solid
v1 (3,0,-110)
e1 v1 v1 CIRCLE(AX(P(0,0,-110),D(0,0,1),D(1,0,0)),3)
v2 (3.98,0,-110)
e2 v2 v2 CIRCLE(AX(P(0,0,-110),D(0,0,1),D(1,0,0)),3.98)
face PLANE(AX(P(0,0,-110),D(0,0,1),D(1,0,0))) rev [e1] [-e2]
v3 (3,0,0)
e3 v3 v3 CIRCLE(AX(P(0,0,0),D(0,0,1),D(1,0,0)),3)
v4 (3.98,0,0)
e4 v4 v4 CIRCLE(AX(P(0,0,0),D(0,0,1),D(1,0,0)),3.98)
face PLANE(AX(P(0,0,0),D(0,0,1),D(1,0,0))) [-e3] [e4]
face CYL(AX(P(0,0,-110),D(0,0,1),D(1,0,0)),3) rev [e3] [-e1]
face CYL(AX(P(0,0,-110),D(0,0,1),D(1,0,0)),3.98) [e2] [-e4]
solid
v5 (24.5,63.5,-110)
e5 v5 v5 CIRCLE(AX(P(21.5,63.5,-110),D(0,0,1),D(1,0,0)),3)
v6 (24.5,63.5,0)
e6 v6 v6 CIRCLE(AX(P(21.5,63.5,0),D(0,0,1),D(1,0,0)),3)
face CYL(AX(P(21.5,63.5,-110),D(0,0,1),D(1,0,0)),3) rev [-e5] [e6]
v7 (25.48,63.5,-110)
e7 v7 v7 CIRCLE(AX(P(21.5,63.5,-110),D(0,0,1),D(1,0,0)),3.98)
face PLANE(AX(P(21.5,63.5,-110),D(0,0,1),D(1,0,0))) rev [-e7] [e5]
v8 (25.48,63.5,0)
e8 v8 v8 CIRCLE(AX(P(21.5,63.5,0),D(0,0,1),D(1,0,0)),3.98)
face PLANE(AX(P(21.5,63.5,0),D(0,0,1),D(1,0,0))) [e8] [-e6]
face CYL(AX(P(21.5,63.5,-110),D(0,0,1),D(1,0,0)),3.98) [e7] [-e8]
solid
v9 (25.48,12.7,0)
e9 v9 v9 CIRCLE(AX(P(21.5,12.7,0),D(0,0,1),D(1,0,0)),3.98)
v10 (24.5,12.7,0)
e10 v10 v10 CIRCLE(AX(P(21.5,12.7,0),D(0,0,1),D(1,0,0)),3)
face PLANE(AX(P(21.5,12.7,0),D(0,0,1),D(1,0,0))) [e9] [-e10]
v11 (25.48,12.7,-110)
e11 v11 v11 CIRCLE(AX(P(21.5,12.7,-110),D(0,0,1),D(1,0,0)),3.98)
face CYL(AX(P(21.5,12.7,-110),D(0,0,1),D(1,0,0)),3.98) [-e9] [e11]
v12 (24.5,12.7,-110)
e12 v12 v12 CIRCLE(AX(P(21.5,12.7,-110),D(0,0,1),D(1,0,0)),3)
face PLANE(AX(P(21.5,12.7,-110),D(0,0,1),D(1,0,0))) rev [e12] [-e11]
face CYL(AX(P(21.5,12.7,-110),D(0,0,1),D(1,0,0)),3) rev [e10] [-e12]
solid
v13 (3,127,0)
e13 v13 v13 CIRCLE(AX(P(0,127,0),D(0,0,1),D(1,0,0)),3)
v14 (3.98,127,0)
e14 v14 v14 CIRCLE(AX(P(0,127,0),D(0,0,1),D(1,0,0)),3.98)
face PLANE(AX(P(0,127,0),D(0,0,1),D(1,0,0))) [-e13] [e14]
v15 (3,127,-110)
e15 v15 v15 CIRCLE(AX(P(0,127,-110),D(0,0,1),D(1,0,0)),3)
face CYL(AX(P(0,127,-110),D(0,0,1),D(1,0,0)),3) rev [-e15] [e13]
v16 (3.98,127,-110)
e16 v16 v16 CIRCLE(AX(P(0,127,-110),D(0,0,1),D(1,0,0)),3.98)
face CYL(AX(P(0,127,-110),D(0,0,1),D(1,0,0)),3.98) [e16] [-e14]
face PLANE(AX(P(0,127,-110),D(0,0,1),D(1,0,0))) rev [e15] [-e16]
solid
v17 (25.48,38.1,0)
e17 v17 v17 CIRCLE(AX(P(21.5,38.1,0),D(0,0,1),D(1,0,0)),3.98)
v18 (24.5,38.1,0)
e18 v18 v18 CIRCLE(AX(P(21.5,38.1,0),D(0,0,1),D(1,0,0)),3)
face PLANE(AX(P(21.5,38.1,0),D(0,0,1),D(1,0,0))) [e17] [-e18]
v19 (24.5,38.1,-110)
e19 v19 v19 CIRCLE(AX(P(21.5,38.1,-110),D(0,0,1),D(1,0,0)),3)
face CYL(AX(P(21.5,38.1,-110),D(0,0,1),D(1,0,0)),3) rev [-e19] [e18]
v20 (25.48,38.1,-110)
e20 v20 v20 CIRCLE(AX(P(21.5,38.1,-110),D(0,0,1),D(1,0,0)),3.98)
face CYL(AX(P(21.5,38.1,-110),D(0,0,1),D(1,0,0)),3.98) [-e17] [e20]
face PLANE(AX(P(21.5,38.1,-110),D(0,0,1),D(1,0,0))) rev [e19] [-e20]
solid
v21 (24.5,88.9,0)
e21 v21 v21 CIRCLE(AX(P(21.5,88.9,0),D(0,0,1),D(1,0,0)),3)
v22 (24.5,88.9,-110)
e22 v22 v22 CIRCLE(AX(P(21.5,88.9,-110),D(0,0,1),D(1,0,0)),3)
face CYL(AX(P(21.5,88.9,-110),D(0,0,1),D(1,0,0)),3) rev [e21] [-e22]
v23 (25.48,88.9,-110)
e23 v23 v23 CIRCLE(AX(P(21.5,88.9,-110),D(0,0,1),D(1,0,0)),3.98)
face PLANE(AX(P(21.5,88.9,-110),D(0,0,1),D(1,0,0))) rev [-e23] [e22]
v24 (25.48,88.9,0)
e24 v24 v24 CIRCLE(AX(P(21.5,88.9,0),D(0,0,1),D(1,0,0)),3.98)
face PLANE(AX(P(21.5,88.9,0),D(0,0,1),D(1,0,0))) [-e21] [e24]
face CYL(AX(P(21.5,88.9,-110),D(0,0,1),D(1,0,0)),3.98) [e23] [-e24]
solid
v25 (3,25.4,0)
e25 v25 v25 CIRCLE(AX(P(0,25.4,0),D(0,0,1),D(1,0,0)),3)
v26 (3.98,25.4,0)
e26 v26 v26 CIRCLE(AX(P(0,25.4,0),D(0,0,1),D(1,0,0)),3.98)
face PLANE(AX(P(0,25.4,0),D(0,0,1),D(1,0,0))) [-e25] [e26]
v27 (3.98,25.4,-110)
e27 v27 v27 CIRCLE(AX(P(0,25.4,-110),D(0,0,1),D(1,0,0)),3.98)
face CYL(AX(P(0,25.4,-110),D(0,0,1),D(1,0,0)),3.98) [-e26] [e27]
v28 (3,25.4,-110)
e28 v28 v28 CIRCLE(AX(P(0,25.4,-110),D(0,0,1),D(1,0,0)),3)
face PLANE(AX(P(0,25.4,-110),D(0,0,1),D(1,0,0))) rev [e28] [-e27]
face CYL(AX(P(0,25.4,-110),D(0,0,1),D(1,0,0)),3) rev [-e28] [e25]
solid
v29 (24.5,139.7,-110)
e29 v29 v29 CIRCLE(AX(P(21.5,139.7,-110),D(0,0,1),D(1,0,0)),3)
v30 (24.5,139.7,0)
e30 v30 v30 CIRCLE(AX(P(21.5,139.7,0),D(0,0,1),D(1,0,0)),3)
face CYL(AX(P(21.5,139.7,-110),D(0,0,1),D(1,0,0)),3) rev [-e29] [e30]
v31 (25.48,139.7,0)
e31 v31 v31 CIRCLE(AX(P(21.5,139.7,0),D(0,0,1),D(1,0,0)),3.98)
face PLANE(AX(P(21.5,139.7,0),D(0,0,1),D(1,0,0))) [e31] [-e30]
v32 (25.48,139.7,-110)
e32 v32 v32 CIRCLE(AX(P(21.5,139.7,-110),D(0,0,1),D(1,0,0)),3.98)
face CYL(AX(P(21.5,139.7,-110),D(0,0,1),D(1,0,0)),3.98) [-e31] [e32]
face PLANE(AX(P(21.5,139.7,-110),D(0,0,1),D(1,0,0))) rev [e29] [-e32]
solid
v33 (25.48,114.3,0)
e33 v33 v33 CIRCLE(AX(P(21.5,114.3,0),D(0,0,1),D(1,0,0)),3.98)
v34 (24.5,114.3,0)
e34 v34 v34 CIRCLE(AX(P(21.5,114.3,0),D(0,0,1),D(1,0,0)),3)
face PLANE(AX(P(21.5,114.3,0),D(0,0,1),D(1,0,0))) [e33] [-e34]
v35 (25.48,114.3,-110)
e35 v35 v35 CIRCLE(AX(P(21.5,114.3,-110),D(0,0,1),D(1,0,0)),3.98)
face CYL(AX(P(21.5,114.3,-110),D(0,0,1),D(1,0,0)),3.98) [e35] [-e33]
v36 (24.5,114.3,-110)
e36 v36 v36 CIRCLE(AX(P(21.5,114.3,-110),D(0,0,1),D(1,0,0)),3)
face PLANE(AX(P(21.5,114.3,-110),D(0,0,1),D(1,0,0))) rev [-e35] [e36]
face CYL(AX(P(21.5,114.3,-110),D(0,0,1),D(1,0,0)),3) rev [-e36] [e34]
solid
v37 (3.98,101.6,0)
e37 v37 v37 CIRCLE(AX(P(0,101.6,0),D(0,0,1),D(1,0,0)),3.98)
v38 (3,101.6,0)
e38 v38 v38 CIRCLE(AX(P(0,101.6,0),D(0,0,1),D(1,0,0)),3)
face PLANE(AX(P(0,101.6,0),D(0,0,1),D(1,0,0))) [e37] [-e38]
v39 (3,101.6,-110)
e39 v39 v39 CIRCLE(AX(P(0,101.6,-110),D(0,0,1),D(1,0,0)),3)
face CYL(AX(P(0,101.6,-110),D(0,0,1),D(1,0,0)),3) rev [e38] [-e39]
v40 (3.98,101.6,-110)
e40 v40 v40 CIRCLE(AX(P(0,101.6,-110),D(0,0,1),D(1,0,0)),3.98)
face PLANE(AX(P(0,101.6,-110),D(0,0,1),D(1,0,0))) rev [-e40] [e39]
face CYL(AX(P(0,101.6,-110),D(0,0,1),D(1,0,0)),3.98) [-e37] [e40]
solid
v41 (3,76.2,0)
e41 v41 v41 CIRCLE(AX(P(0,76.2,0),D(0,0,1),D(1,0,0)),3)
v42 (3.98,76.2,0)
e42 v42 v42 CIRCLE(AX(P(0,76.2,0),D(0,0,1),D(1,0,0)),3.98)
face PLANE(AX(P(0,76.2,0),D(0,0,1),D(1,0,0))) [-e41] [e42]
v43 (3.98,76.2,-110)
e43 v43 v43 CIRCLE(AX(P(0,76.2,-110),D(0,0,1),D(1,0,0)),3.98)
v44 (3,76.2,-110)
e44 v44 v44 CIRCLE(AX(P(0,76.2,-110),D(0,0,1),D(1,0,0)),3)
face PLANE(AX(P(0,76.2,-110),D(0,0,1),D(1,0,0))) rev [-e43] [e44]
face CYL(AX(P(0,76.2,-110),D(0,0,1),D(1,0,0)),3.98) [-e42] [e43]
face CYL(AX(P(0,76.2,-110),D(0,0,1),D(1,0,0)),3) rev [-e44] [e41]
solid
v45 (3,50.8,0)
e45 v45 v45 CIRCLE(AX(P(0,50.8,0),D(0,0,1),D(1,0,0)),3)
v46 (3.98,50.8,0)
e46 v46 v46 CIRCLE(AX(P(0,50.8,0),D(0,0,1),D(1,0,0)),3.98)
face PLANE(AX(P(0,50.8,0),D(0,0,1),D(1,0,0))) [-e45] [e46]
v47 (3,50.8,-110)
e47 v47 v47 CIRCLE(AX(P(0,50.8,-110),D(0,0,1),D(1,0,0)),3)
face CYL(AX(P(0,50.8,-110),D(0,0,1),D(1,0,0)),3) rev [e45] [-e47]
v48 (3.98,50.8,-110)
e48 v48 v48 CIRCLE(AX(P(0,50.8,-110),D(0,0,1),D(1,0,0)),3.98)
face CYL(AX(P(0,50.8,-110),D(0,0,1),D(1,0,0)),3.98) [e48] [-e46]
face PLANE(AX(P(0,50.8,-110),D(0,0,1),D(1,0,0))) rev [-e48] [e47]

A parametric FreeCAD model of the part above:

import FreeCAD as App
import Part
import Sketcher

V = App.Vector

doc = App.newDocument("Part")
body = doc.addObject("PartDesign::Body", "Body")

# Sketch on XY plane
sketch1 = body.newObject("Sketcher::SketchObject", "Sketch")
sketch1.AttachmentSupport = (doc.getObject("XY_Plane"), [""])
sketch1.MapMode = "FlatFace"
sketch1.addGeometry(Part.Circle(V(0, 0, 0), V(0, 0, 1), 4), False)
sketch1.addGeometry(Part.Circle(V(0, 0, 0), V(0, 0, 1), 3), False)
sketch1.addConstraint(Sketcher.Constraint("Coincident", 0, 3, -1, 1))
sketch1.addConstraint(Sketcher.Constraint("Coincident", 1, 3, -1, 1))
sketch1.addConstraint(Sketcher.Constraint("Diameter", 1, 6.0))
sketch1.addConstraint(Sketcher.Constraint("Diameter", 0, 7.96))
pad1 = body.newObject("PartDesign::Pad", "Pad")
pad1.Profile = sketch1
pad1.Length = 110
pad1.Reversed = True
body2 = doc.addObject("PartDesign::Body", "Body001")

# Sketch on XY plane
sketch2 = body2.newObject("Sketcher::SketchObject", "Sketch001")
sketch2.AttachmentSupport = (doc.getObject("XY_Plane001"), [""])
sketch2.MapMode = "FlatFace"
sketch2.addGeometry(Part.Circle(V(21.5, 12.7, 0), V(0, 0, 1), 4), False)
sketch2.addGeometry(Part.Circle(V(21.5, 12.7, 0), V(0, 0, 1), 3), False)
sketch2.addConstraint(Sketcher.Constraint("Coincident", 1, 3, 0, 3))
sketch2.addConstraint(Sketcher.Constraint("Diameter", 1, 6.0))
sketch2.addConstraint(Sketcher.Constraint("Diameter", 0, 7.96))
sketch2.addConstraint(Sketcher.Constraint("DistanceX", -1, 1, 0, 3, 21.5))
sketch2.addConstraint(Sketcher.Constraint("DistanceY", -1, 1, 0, 3, 12.7))
pad2 = body2.newObject("PartDesign::Pad", "Pad001")
pad2.Profile = sketch2
pad2.Length = 110
pad2.Reversed = True
body3 = doc.addObject("PartDesign::Body", "Body002")

# Sketch on XY plane
sketch3 = body3.newObject("Sketcher::SketchObject", "Sketch002")
sketch3.AttachmentSupport = (doc.getObject("XY_Plane002"), [""])
sketch3.MapMode = "FlatFace"
sketch3.addGeometry(Part.Circle(V(0, 25.4, 0), V(0, 0, 1), 4), False)
sketch3.addGeometry(Part.Circle(V(0, 25.4, 0), V(0, 0, 1), 3), False)
sketch3.addConstraint(Sketcher.Constraint("Coincident", 1, 3, 0, 3))
sketch3.addConstraint(Sketcher.Constraint("PointOnObject", 0, 3, -2))
sketch3.addConstraint(Sketcher.Constraint("Diameter", 1, 6.0))
sketch3.addConstraint(Sketcher.Constraint("Diameter", 0, 7.96))
sketch3.addConstraint(Sketcher.Constraint("DistanceY", -1, 1, 0, 3, 25.4))
pad3 = body3.newObject("PartDesign::Pad", "Pad002")
pad3.Profile = sketch3
pad3.Length = 110
pad3.Reversed = True
body4 = doc.addObject("PartDesign::Body", "Body003")

# Sketch on XY plane
sketch4 = body4.newObject("Sketcher::SketchObject", "Sketch003")
sketch4.AttachmentSupport = (doc.getObject("XY_Plane003"), [""])
sketch4.MapMode = "FlatFace"
sketch4.addGeometry(Part.Circle(V(0, 50.8, 0), V(0, 0, 1), 4), False)
sketch4.addGeometry(Part.Circle(V(0, 50.8, 0), V(0, 0, 1), 3), False)
sketch4.addConstraint(Sketcher.Constraint("Coincident", 1, 3, 0, 3))
sketch4.addConstraint(Sketcher.Constraint("PointOnObject", 0, 3, -2))
sketch4.addConstraint(Sketcher.Constraint("Diameter", 1, 6.0))
sketch4.addConstraint(Sketcher.Constraint("Diameter", 0, 7.96))
sketch4.addConstraint(Sketcher.Constraint("DistanceY", -1, 1, 0, 3, 50.8))
pad4 = body4.newObject("PartDesign::Pad", "Pad003")
pad4.Profile = sketch4
pad4.Length = 110
pad4.Reversed = True
body5 = doc.addObject("PartDesign::Body", "Body004")

# Sketch on XY plane
sketch5 = body5.newObject("Sketcher::SketchObject", "Sketch004")
sketch5.AttachmentSupport = (doc.getObject("XY_Plane004"), [""])
sketch5.MapMode = "FlatFace"
sketch5.addGeometry(Part.Circle(V(0, 76.2, 0), V(0, 0, 1), 4), False)
sketch5.addGeometry(Part.Circle(V(0, 76.2, 0), V(0, 0, 1), 3), False)
sketch5.addConstraint(Sketcher.Constraint("Coincident", 1, 3, 0, 3))
sketch5.addConstraint(Sketcher.Constraint("PointOnObject", 0, 3, -2))
sketch5.addConstraint(Sketcher.Constraint("Diameter", 1, 6.0))
sketch5.addConstraint(Sketcher.Constraint("Diameter", 0, 7.96))
sketch5.addConstraint(Sketcher.Constraint("DistanceY", -1, 1, 0, 3, 76.2))
pad5 = body5.newObject("PartDesign::Pad", "Pad004")
pad5.Profile = sketch5
pad5.Length = 110
pad5.Reversed = True
body6 = doc.addObject("PartDesign::Body", "Body005")

# Sketch on XY plane
sketch6 = body6.newObject("Sketcher::SketchObject", "Sketch005")
sketch6.AttachmentSupport = (doc.getObject("XY_Plane005"), [""])
sketch6.MapMode = "FlatFace"
sketch6.addGeometry(Part.Circle(V(0, 101.6, 0), V(0, 0, 1), 4), False)
sketch6.addGeometry(Part.Circle(V(0, 101.6, 0), V(0, 0, 1), 3), False)
sketch6.addConstraint(Sketcher.Constraint("Coincident", 1, 3, 0, 3))
sketch6.addConstraint(Sketcher.Constraint("PointOnObject", 0, 3, -2))
sketch6.addConstraint(Sketcher.Constraint("Diameter", 1, 6.0))
sketch6.addConstraint(Sketcher.Constraint("Diameter", 0, 7.96))
sketch6.addConstraint(Sketcher.Constraint("DistanceY", -1, 1, 0, 3, 101.6))
pad6 = body6.newObject("PartDesign::Pad", "Pad005")
pad6.Profile = sketch6
pad6.Length = 110
pad6.Reversed = True
body7 = doc.addObject("PartDesign::Body", "Body006")

# Sketch on XY plane
sketch7 = body7.newObject("Sketcher::SketchObject", "Sketch006")
sketch7.AttachmentSupport = (doc.getObject("XY_Plane006"), [""])
sketch7.MapMode = "FlatFace"
sketch7.addGeometry(Part.Circle(V(0, 127, 0), V(0, 0, 1), 4), False)
sketch7.addGeometry(Part.Circle(V(0, 127, 0), V(0, 0, 1), 3), False)
sketch7.addConstraint(Sketcher.Constraint("Coincident", 1, 3, 0, 3))
sketch7.addConstraint(Sketcher.Constraint("PointOnObject", 0, 3, -2))
sketch7.addConstraint(Sketcher.Constraint("Diameter", 1, 6.0))
sketch7.addConstraint(Sketcher.Constraint("Diameter", 0, 7.96))
sketch7.addConstraint(Sketcher.Constraint("DistanceY", -1, 1, 0, 3, 127.0))
pad7 = body7.newObject("PartDesign::Pad", "Pad006")
pad7.Profile = sketch7
pad7.Length = 110
pad7.Reversed = True
body8 = doc.addObject("PartDesign::Body", "Body007")

# Sketch on XY plane
sketch8 = body8.newObject("Sketcher::SketchObject", "Sketch007")
sketch8.AttachmentSupport = (doc.getObject("XY_Plane007"), [""])
sketch8.MapMode = "FlatFace"
sketch8.addGeometry(Part.Circle(V(21.5, 38.1, 0), V(0, 0, 1), 4), False)
sketch8.addGeometry(Part.Circle(V(21.5, 38.1, 0), V(0, 0, 1), 3), False)
sketch8.addConstraint(Sketcher.Constraint("Coincident", 1, 3, 0, 3))
sketch8.addConstraint(Sketcher.Constraint("Diameter", 1, 6.0))
sketch8.addConstraint(Sketcher.Constraint("Diameter", 0, 7.96))
sketch8.addConstraint(Sketcher.Constraint("DistanceX", -1, 1, 0, 3, 21.5))
sketch8.addConstraint(Sketcher.Constraint("DistanceY", -1, 1, 0, 3, 38.1))
pad8 = body8.newObject("PartDesign::Pad", "Pad007")
pad8.Profile = sketch8
pad8.Length = 110
pad8.Reversed = True
body9 = doc.addObject("PartDesign::Body", "Body008")

# Sketch on XY plane
sketch9 = body9.newObject("Sketcher::SketchObject", "Sketch008")
sketch9.AttachmentSupport = (doc.getObject("XY_Plane008"), [""])
sketch9.MapMode = "FlatFace"
sketch9.addGeometry(Part.Circle(V(21.5, 63.5, 0), V(0, 0, 1), 4), False)
sketch9.addGeometry(Part.Circle(V(21.5, 63.5, 0), V(0, 0, 1), 3), False)
sketch9.addConstraint(Sketcher.Constraint("Coincident", 1, 3, 0, 3))
sketch9.addConstraint(Sketcher.Constraint("Diameter", 1, 6.0))
sketch9.addConstraint(Sketcher.Constraint("Diameter", 0, 7.96))
sketch9.addConstraint(Sketcher.Constraint("DistanceX", -1, 1, 0, 3, 21.5))
sketch9.addConstraint(Sketcher.Constraint("DistanceY", -1, 1, 0, 3, 63.5))
pad9 = body9.newObject("PartDesign::Pad", "Pad008")
pad9.Profile = sketch9
pad9.Length = 110
pad9.Reversed = True
body10 = doc.addObject("PartDesign::Body", "Body009")

# Sketch on XY plane
sketch10 = body10.newObject("Sketcher::SketchObject", "Sketch009")
sketch10.AttachmentSupport = (doc.getObject("XY_Plane009"), [""])
sketch10.MapMode = "FlatFace"
sketch10.addGeometry(Part.Circle(V(21.5, 88.9, 0), V(0, 0, 1), 4), False)
sketch10.addGeometry(Part.Circle(V(21.5, 88.9, 0), V(0, 0, 1), 3), False)
sketch10.addConstraint(Sketcher.Constraint("Coincident", 1, 3, 0, 3))
sketch10.addConstraint(Sketcher.Constraint("Diameter", 1, 6.0))
sketch10.addConstraint(Sketcher.Constraint("Diameter", 0, 7.96))
sketch10.addConstraint(Sketcher.Constraint("DistanceX", -1, 1, 0, 3, 21.5))
sketch10.addConstraint(Sketcher.Constraint("DistanceY", -1, 1, 0, 3, 88.9))
pad10 = body10.newObject("PartDesign::Pad", "Pad009")
pad10.Profile = sketch10
pad10.Length = 110
pad10.Reversed = True
body11 = doc.addObject("PartDesign::Body", "Body010")

# Sketch on XY plane
sketch11 = body11.newObject("Sketcher::SketchObject", "Sketch010")
sketch11.AttachmentSupport = (doc.getObject("XY_Plane010"), [""])
sketch11.MapMode = "FlatFace"
sketch11.addGeometry(Part.Circle(V(21.5, 114.3, 0), V(0, 0, 1), 4), False)
sketch11.addGeometry(Part.Circle(V(21.5, 114.3, 0), V(0, 0, 1), 3), False)
sketch11.addConstraint(Sketcher.Constraint("Coincident", 1, 3, 0, 3))
sketch11.addConstraint(Sketcher.Constraint("Diameter", 1, 6.0))
sketch11.addConstraint(Sketcher.Constraint("Diameter", 0, 7.96))
sketch11.addConstraint(Sketcher.Constraint("DistanceX", -1, 1, 0, 3, 21.5))
sketch11.addConstraint(Sketcher.Constraint("DistanceY", -1, 1, 0, 3, 114.3))
pad11 = body11.newObject("PartDesign::Pad", "Pad010")
pad11.Profile = sketch11
pad11.Length = 110
pad11.Reversed = True
body12 = doc.addObject("PartDesign::Body", "Body011")

# Sketch on XY plane
sketch12 = body12.newObject("Sketcher::SketchObject", "Sketch011")
sketch12.AttachmentSupport = (doc.getObject("XY_Plane011"), [""])
sketch12.MapMode = "FlatFace"
sketch12.addGeometry(Part.Circle(V(21.5, 139.7, 0), V(0, 0, 1), 4), False)
sketch12.addGeometry(Part.Circle(V(21.5, 139.7, 0), V(0, 0, 1), 3), False)
sketch12.addConstraint(Sketcher.Constraint("Coincident", 1, 3, 0, 3))
sketch12.addConstraint(Sketcher.Constraint("Diameter", 1, 6.0))
sketch12.addConstraint(Sketcher.Constraint("Diameter", 0, 7.96))
sketch12.addConstraint(Sketcher.Constraint("DistanceX", -1, 1, 0, 3, 21.5))
sketch12.addConstraint(Sketcher.Constraint("DistanceY", -1, 1, 0, 3, 139.7))
pad12 = body12.newObject("PartDesign::Pad", "Pad011")
pad12.Profile = sketch12
pad12.Length = 110
pad12.Reversed = True

doc.recompute()
